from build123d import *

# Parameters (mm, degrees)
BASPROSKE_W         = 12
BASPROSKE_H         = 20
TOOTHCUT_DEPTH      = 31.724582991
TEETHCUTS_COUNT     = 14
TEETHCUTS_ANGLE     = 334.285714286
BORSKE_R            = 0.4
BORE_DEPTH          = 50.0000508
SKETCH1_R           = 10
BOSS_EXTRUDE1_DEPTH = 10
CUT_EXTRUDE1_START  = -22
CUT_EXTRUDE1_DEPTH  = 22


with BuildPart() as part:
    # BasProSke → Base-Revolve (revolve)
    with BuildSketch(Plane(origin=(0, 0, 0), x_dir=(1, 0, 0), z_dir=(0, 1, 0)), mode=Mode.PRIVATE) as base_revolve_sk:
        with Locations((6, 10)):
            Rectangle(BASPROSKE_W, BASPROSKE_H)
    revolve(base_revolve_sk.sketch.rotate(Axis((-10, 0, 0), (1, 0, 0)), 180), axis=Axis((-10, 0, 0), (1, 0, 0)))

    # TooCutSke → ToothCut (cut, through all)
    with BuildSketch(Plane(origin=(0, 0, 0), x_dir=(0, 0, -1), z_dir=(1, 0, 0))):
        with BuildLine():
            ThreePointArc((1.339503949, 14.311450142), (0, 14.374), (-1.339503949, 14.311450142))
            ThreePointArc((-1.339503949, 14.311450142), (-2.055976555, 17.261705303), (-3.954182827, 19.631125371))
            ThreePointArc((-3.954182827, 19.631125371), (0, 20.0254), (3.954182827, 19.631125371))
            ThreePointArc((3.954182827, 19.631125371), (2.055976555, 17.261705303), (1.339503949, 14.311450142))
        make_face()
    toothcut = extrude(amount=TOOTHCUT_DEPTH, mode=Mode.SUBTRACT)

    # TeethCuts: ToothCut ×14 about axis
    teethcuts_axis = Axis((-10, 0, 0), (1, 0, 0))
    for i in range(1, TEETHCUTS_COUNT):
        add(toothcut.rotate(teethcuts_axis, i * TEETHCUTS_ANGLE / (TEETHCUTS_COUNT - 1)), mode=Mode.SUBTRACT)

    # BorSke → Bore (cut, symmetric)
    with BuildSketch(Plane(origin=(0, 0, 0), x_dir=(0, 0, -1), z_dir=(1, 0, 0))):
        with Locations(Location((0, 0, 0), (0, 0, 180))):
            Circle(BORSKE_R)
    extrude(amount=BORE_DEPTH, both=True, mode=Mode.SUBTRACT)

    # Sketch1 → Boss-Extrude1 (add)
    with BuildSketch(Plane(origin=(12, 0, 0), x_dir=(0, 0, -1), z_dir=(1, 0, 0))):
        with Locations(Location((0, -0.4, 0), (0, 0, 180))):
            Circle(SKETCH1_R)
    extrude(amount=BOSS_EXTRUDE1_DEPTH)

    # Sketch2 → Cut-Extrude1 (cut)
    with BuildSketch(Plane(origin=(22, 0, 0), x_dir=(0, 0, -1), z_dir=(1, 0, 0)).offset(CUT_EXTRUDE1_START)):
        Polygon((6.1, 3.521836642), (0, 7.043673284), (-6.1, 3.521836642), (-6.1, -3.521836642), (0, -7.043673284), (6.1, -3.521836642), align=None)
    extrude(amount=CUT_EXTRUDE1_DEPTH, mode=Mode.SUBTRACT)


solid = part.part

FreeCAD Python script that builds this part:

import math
import FreeCAD as App
import Part
import Sketcher
Q = App.Units.Quantity

doc = App.newDocument("Part")
params = doc.addObject("Spreadsheet::Sheet", "Params")
for row, (alias, value) in enumerate([
    ("sketch1_width", "12 mm"),
    ("sketch1_height", "20 mm"),
    ("revolution_angle", "360 deg"),
    ("sketch2_radius", "7 mm"),
    ("sketch3_diameter", "0.8 mm"),
    ("pocket2_length", "100.000102 mm"),
    ("sketch4_diameter", "20 mm"),
    ("pad1_length", "10 mm"),
    ("pocket3_length", "22 mm"),
], start=1):
    params.set(f"A{row}", alias)
    params.set(f"B{row}", "=" + value)
    params.setAlias(f"B{row}", alias)

body = doc.addObject("PartDesign::Body", "Body")

# Sketch on XZ plane
sketch1 = doc.addObject("Sketcher::SketchObject", "Sketch")
body.addObject(sketch1)
sketch1.AttachmentSupport = (doc.XZ_Plane, [""])
sketch1.MapMode = "FlatFace"
sketch1.addGeometry(Part.LineSegment(App.Vector(0, -20, 0), App.Vector(0, 0, 0)), False)
sketch1.addGeometry(Part.LineSegment(App.Vector(0, 0, 0), App.Vector(12, 0, 0)), False)
sketch1.addGeometry(Part.LineSegment(App.Vector(12, 0, 0), App.Vector(12, -20, 0)), False)
sketch1.addGeometry(Part.LineSegment(App.Vector(12, -20, 0), App.Vector(0, -20, 0)), False)
sketch1.addConstraint(Sketcher.Constraint("Coincident", 0, 2, 1, 1))
sketch1.addConstraint(Sketcher.Constraint("Coincident", 1, 2, 2, 1))
sketch1.addConstraint(Sketcher.Constraint("Coincident", 2, 2, 3, 1))
sketch1.addConstraint(Sketcher.Constraint("Coincident", 3, 2, 0, 1))
sketch1.addConstraint(Sketcher.Constraint("Vertical", 0))
sketch1.addConstraint(Sketcher.Constraint("Horizontal", 1))
sketch1.addConstraint(Sketcher.Constraint("Vertical", 2))
sketch1.addConstraint(Sketcher.Constraint("Horizontal", 3))
sketch1.addConstraint(Sketcher.Constraint("Coincident", 0, 2, -1, 1))
sketch1.addConstraint(Sketcher.Constraint("DistanceX", 1, 1, 1, 2, 12.0))
sketch1.addConstraint(Sketcher.Constraint("DistanceY", 0, 1, 0, 2, 20.0))
sketch1.setExpression("Constraints[9]", "Params.sketch1_width")
sketch1.setExpression("Constraints[10]", "Params.sketch1_height")
revolution = doc.addObject("PartDesign::Revolution", "Revolution")
body.addObject(revolution)
revolution.Profile = sketch1
revolution.ReferenceAxis = (sketch1, ["H_Axis"])
revolution.setExpression("Angle", "Params.revolution_angle")

# Sketch on YZ plane
sketch2 = doc.addObject("Sketcher::SketchObject", "Sketch001")
body.addObject(sketch2)
sketch2.AttachmentSupport = (doc.YZ_Plane, [""])
sketch2.MapMode = "FlatFace"
sketch2.addGeometry(Part.ArcOfCircle(Part.Circle(App.Vector(0, 0, 0), App.Vector(0, 0, 1), 14.374), math.radians(-5.347116), math.radians(5.347116)), False)
sketch2.addGeometry(Part.ArcOfCircle(Part.Circle(App.Vector(14.173946, -8.338153, 0), App.Vector(0, 0, 1), 7), math.radians(38.776308), math.radians(88.874444)), False)
sketch2.addGeometry(Part.ArcOfCircle(Part.Circle(App.Vector(0, 0, 0), App.Vector(0, 0, 1), 20.0254), math.radians(-11.388371), math.radians(11.388371)), False)
sketch2.addGeometry(Part.ArcOfCircle(Part.Circle(App.Vector(14.173946, 8.338153, 0), App.Vector(0, 0, 1), 7), math.radians(-88.874444), math.radians(-38.776308)), False)
sketch2.addConstraint(Sketcher.Constraint("Coincident", 0, 1, 1, 2))
sketch2.addConstraint(Sketcher.Constraint("Coincident", 1, 1, 2, 1))
sketch2.addConstraint(Sketcher.Constraint("Coincident", 2, 2, 3, 2))
sketch2.addConstraint(Sketcher.Constraint("Coincident", 3, 1, 0, 2))
sketch2.addConstraint(Sketcher.Constraint("Coincident", 0, 3, -1, 1))
sketch2.addConstraint(Sketcher.Constraint("Coincident", 2, 3, -1, 1))
sketch2.addConstraint(Sketcher.Constraint("Equal", 1, 3))
sketch2.addConstraint(Sketcher.Constraint("Symmetric", 1, 3, 3, 3, -1))
sketch2.addConstraint(Sketcher.Constraint("Radius", 1, 7.0))
sketch2.addConstraint(Sketcher.Constraint("Radius", 0, 14.374))
sketch2.addConstraint(Sketcher.Constraint("Radius", 2, 20.0254))
sketch2.addConstraint(Sketcher.Constraint("DistanceX", -1, 1, 0, 1, 14.31145))
sketch2.addConstraint(Sketcher.Constraint("DistanceY", 1, 1, 0, 1, 2.614679))
sketch2.setExpression("Constraints[8]", "Params.sketch2_radius")
pocket1 = doc.addObject("PartDesign::Pocket", "Pocket")
body.addObject(pocket1)
pocket1.Profile = sketch2
pocket1.Type = "ThroughAll"
pocket1.Reversed = True
doc.recompute()

polarpattern = doc.addObject("PartDesign::PolarPattern", "PolarPattern")
body.addObject(polarpattern)
polarpattern.Originals = [pocket1]
polarpattern.Axis = (doc.X_Axis, [""])
polarpattern.Angle = 360
polarpattern.Occurrences = 14
body.Tip = polarpattern

# Sketch on YZ plane
sketch3 = doc.addObject("Sketcher::SketchObject", "Sketch002")
body.addObject(sketch3)
sketch3.AttachmentSupport = (doc.YZ_Plane, [""])
sketch3.MapMode = "FlatFace"
sketch3.addGeometry(Part.Circle(App.Vector(0, 0, 0), App.Vector(0, 0, 1), 0.4), False)
sketch3.addConstraint(Sketcher.Constraint("Coincident", 0, 3, -1, 1))
sketch3.addConstraint(Sketcher.Constraint("Diameter", 0, 0.8))
sketch3.setExpression("Constraints[1]", "Params.sketch3_diameter")
pocket2 = doc.addObject("PartDesign::Pocket", "Pocket001")
body.addObject(pocket2)
pocket2.Profile = sketch3
pocket2.setExpression("Length", "Params.pocket2_length")
pocket2.Midplane = True

# Sketch on YZ plane
sketch4 = doc.addObject("Sketcher::SketchObject", "Sketch003")
body.addObject(sketch4)
sketch4.AttachmentSupport = (doc.YZ_Plane, [""])
sketch4.MapMode = "FlatFace"
sketch4.AttachmentOffset = App.Placement(App.Vector(0, 0, 12), App.Rotation())
sketch4.addGeometry(Part.Circle(App.Vector(-0.4, 0, 0), App.Vector(0, 0, 1), 10), False)
sketch4.addConstraint(Sketcher.Constraint("PointOnObject", 0, 3, -1))
sketch4.addConstraint(Sketcher.Constraint("Diameter", 0, 20.0))
sketch4.addConstraint(Sketcher.Constraint("DistanceX", 0, 3, -1, 1, 0.4))
sketch4.setExpression("Constraints[1]", "Params.sketch4_diameter")
pad1 = doc.addObject("PartDesign::Pad", "Pad")
body.addObject(pad1)
pad1.Profile = sketch4
pad1.setExpression("Length", "Params.pad1_length")

# Sketch on YZ plane
sketch5 = doc.addObject("Sketcher::SketchObject", "Sketch004")
body.addObject(sketch5)
sketch5.AttachmentSupport = (doc.YZ_Plane, [""])
sketch5.MapMode = "FlatFace"
sketch5.addGeometry(Part.LineSegment(App.Vector(3.521837, -6.1, 0), App.Vector(7.043673, 0, 0)), False)
sketch5.addGeometry(Part.LineSegment(App.Vector(7.043673, 0, 0), App.Vector(3.521837, 6.1, 0)), False)
sketch5.addGeometry(Part.LineSegment(App.Vector(3.521837, 6.1, 0), App.Vector(-3.521837, 6.1, 0)), False)
sketch5.addGeometry(Part.LineSegment(App.Vector(-3.521837, 6.1, 0), App.Vector(-7.043673, 0, 0)), False)
sketch5.addGeometry(Part.LineSegment(App.Vector(-7.043673, 0, 0), App.Vector(-3.521837, -6.1, 0)), False)
sketch5.addGeometry(Part.LineSegment(App.Vector(-3.521837, -6.1, 0), App.Vector(3.521837, -6.1, 0)), False)
sketch5.addConstraint(Sketcher.Constraint("Coincident", 0, 2, 1, 1))
sketch5.addConstraint(Sketcher.Constraint("Coincident", 1, 2, 2, 1))
sketch5.addConstraint(Sketcher.Constraint("Coincident", 2, 2, 3, 1))
sketch5.addConstraint(Sketcher.Constraint("Coincident", 3, 2, 4, 1))
sketch5.addConstraint(Sketcher.Constraint("Coincident", 4, 2, 5, 1))
sketch5.addConstraint(Sketcher.Constraint("Coincident", 5, 2, 0, 1))
sketch5.addConstraint(Sketcher.Constraint("Horizontal", 2))
sketch5.addConstraint(Sketcher.Constraint("Horizontal", 5))
sketch5.addConstraint(Sketcher.Constraint("Symmetric", 0, 2, 3, 2, -1, 1))
sketch5.addConstraint(Sketcher.Constraint("Symmetric", 1, 2, 4, 2, -1, 1))
sketch5.addConstraint(Sketcher.Constraint("PointOnObject", 0, 2, -1))
sketch5.addConstraint(Sketcher.Constraint("Parallel", 0, 3))
sketch5.addConstraint(Sketcher.Constraint("Vertical", 2, 2, 4, 2))
sketch5.addConstraint(Sketcher.Constraint("Angle", 0, Q("60 deg")))
sketch5.addConstraint(Sketcher.Constraint("DistanceY", -1, 1, 1, 2, 6.1))
sketch5.addConstraint(Sketcher.Constraint("DistanceX", 2, 2, 2, 1, 7.043673))
pocket3 = doc.addObject("PartDesign::Pocket", "Pocket002")
body.addObject(pocket3)
pocket3.Profile = sketch5
pocket3.setExpression("Length", "Params.pocket3_length")
pocket3.Reversed = True

doc.recompute()
